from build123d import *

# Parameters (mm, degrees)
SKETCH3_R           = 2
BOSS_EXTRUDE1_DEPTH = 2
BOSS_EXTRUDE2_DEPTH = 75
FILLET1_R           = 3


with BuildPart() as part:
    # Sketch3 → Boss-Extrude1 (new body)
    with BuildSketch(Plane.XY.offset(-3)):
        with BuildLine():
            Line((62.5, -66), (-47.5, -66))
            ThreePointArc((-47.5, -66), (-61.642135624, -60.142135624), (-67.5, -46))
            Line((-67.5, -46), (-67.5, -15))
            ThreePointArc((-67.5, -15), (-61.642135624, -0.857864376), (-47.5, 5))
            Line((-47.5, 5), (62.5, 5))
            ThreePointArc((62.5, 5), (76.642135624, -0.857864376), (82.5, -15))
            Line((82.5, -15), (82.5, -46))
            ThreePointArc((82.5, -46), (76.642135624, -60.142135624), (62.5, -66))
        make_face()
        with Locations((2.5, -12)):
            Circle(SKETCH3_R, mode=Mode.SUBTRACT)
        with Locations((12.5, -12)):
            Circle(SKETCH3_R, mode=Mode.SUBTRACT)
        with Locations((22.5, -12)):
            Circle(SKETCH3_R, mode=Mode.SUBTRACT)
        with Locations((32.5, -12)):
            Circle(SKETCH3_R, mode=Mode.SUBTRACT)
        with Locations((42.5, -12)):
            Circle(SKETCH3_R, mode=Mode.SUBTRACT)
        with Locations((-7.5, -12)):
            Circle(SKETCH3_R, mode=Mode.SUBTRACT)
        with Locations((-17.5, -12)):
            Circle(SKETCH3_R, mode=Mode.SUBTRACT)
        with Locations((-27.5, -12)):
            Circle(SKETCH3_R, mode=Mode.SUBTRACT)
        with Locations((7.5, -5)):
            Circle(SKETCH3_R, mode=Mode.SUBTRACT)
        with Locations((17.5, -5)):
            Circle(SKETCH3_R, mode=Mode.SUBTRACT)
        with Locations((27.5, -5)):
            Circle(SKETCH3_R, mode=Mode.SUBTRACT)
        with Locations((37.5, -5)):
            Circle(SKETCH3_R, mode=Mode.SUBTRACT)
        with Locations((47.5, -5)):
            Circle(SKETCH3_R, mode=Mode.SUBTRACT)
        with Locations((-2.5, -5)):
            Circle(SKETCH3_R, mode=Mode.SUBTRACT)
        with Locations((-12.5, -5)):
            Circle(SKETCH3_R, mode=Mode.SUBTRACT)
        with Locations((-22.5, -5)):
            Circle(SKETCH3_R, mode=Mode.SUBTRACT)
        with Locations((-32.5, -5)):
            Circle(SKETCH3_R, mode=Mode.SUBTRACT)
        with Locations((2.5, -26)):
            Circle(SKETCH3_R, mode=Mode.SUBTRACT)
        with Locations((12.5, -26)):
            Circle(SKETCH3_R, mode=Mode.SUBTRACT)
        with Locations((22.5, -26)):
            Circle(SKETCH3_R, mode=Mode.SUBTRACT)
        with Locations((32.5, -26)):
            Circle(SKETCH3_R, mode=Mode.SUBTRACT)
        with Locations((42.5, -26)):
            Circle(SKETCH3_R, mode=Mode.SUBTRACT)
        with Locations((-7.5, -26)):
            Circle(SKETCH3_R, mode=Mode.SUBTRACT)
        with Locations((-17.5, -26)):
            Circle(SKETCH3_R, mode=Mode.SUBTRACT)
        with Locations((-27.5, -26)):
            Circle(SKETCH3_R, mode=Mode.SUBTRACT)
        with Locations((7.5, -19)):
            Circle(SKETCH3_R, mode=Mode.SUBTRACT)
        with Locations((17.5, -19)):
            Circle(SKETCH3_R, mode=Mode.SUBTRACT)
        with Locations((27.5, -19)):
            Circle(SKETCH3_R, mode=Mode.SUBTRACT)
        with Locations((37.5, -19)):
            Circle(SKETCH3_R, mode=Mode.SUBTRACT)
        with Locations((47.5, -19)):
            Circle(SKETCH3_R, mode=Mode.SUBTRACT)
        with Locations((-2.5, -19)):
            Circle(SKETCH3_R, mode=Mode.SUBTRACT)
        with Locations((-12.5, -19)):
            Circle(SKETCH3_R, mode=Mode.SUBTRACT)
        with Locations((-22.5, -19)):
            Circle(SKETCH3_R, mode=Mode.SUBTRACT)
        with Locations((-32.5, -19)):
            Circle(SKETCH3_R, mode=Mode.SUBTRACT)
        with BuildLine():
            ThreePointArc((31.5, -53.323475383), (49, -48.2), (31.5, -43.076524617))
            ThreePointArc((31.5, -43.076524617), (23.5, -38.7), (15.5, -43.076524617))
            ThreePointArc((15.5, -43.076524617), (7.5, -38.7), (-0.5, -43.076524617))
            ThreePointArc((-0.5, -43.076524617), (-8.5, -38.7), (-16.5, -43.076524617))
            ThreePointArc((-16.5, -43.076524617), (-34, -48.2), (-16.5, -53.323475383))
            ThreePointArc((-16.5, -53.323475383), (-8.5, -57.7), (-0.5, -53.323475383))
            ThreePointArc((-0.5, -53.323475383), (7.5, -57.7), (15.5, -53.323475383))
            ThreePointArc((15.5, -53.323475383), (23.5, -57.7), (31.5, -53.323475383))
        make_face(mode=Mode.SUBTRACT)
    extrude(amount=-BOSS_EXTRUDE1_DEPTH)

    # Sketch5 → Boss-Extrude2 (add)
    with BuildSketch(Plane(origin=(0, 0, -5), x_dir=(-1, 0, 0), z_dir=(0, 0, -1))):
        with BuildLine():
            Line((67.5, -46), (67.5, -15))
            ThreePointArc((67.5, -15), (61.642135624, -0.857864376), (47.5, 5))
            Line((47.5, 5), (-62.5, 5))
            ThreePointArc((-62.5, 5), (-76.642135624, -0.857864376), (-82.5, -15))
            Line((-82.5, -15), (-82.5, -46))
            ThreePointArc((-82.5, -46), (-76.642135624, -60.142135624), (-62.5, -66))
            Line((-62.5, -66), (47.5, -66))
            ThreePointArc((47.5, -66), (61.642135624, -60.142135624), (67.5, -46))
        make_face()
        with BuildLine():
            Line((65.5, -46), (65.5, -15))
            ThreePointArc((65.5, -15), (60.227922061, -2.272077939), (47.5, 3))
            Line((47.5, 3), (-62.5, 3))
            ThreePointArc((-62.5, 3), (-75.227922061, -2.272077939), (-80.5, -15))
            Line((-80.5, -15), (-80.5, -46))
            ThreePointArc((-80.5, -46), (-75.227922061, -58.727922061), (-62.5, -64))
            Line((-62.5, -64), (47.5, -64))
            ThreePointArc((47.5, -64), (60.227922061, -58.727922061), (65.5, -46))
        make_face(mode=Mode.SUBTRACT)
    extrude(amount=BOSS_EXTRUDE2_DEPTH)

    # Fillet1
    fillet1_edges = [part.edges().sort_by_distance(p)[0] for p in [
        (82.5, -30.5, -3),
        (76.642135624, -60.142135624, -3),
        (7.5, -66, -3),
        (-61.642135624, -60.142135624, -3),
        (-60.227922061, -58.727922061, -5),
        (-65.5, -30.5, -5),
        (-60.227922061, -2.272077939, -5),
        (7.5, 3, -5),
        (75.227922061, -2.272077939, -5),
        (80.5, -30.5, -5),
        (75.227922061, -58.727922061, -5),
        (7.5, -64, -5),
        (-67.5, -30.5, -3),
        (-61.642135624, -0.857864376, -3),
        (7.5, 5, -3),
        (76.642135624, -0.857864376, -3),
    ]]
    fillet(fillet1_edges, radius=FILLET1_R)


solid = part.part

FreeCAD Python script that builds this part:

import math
import FreeCAD as App
import Part
import Sketcher
from FreeCAD import Vector


def edges_at(feature, points):
    """Names of the edges that pass closest to the given points."""
    edges = feature.Shape.Edges
    near = lambda p: min(range(len(edges)), key=lambda i: edges[i].distToShape(Part.Vertex(*p))[0])
    return sorted({f"Edge{near(p) + 1}" for p in points})

doc = App.newDocument("Part")
params = doc.addObject("Spreadsheet::Sheet", "Params")
for row, (alias, value) in enumerate([
    ("sketch1_diameter", "4 mm"),
    ("sketch1_radius", "20 mm"),
    ("sketch1_radius2", "9.5 mm"),
    ("sketch1_width", "110 mm"),
    ("sketch1_height", "31 mm"),
    ("pad1_length", "2 mm"),
    ("sketch2_radius", "20 mm"),
    ("sketch2_radius2", "18 mm"),
    ("sketch2_width", "110 mm"),
    ("sketch2_height", "31 mm"),
    ("pad2_length", "75 mm"),
    ("fillet_radius", "3 mm"),
], start=1):
    params.set(f"A{row}", alias)
    params.set(f"B{row}", "=" + value)
    params.setAlias(f"B{row}", alias)

body = doc.addObject("PartDesign::Body", "Body")

sketch1 = body.newObject("Sketcher::SketchObject", "Sketch")
sketch1.AttachmentSupport = (doc.getObject("XY_Plane"), [""])
sketch1.MapMode = "FlatFace"
sketch1.AttachmentOffset = App.Placement(Vector(0, 0, -3), App.Rotation())
sketch1.addGeometry([
    Part.LineSegment(Vector(-47.5, -66, 0), Vector(62.5, -66, 0)),
    Part.ArcOfCircle(Part.Circle(Vector(62.5, -46, 0), Vector(0, 0, 1), 20), math.radians(-90), math.radians(0)),
    Part.LineSegment(Vector(82.5, -46, 0), Vector(82.5, -15, 0)),
    Part.ArcOfCircle(Part.Circle(Vector(62.5, -15, 0), Vector(0, 0, 1), 20), math.radians(0), math.radians(90)),
    Part.LineSegment(Vector(62.5, 5, 0), Vector(-47.5, 5, 0)),
    Part.ArcOfCircle(Part.Circle(Vector(-47.5, -15, 0), Vector(0, 0, 1), 20), math.radians(90), math.radians(180)),
    Part.LineSegment(Vector(-67.5, -15, 0), Vector(-67.5, -46, 0)),
    Part.ArcOfCircle(Part.Circle(Vector(-47.5, -46, 0), Vector(0, 0, 1), 20), math.radians(180), math.radians(270)),
    Part.ArcOfCircle(Part.Circle(Vector(23.5, -48.2, 0), Vector(0, 0, 1), 9.5), math.radians(-147), math.radians(-33)),
    Part.ArcOfCircle(Part.Circle(Vector(7.5, -48.2, 0), Vector(0, 0, 1), 9.5), math.radians(-147), math.radians(-33)),
    Part.ArcOfCircle(Part.Circle(Vector(-8.5, -48.2, 0), Vector(0, 0, 1), 9.5), math.radians(-147), math.radians(-33)),
    Part.ArcOfCircle(Part.Circle(Vector(-24.5, -48.2, 0), Vector(0, 0, 1), 9.5), math.radians(33), math.radians(327)),
    Part.ArcOfCircle(Part.Circle(Vector(-8.5, -48.2, 0), Vector(0, 0, 1), 9.5), math.radians(33), math.radians(147)),
    Part.ArcOfCircle(Part.Circle(Vector(7.5, -48.2, 0), Vector(0, 0, 1), 9.5), math.radians(33), math.radians(147)),
    Part.ArcOfCircle(Part.Circle(Vector(23.5, -48.2, 0), Vector(0, 0, 1), 9.5), math.radians(33), math.radians(147)),
    Part.ArcOfCircle(Part.Circle(Vector(39.5, -48.2, 0), Vector(0, 0, 1), 9.5), math.radians(-147), math.radians(147)),
    Part.Circle(Vector(42.5, -26, 0), Vector(0, 0, 1), 2),
    Part.Circle(Vector(32.5, -26, 0), Vector(0, 0, 1), 2),
    Part.Circle(Vector(47.5, -19, 0), Vector(0, 0, 1), 2),
    Part.Circle(Vector(37.5, -19, 0), Vector(0, 0, 1), 2),
    Part.Circle(Vector(22.5, -26, 0), Vector(0, 0, 1), 2),
    Part.Circle(Vector(12.5, -26, 0), Vector(0, 0, 1), 2),
    Part.Circle(Vector(27.5, -19, 0), Vector(0, 0, 1), 2),
    Part.Circle(Vector(17.5, -19, 0), Vector(0, 0, 1), 2),
    Part.Circle(Vector(42.5, -12, 0), Vector(0, 0, 1), 2),
    Part.Circle(Vector(32.5, -12, 0), Vector(0, 0, 1), 2),
    Part.Circle(Vector(47.5, -5, 0), Vector(0, 0, 1), 2),
    Part.Circle(Vector(37.5, -5, 0), Vector(0, 0, 1), 2),
    Part.Circle(Vector(22.5, -12, 0), Vector(0, 0, 1), 2),
    Part.Circle(Vector(12.5, -12, 0), Vector(0, 0, 1), 2),
    Part.Circle(Vector(27.5, -5, 0), Vector(0, 0, 1), 2),
    Part.Circle(Vector(17.5, -5, 0), Vector(0, 0, 1), 2),
    Part.Circle(Vector(2.5, -26, 0), Vector(0, 0, 1), 2),
    Part.Circle(Vector(-7.5, -26, 0), Vector(0, 0, 1), 2),
    Part.Circle(Vector(7.5, -19, 0), Vector(0, 0, 1), 2),
    Part.Circle(Vector(-2.5, -19, 0), Vector(0, 0, 1), 2),
    Part.Circle(Vector(-12.5, -19, 0), Vector(0, 0, 1), 2),
    Part.Circle(Vector(-17.5, -26, 0), Vector(0, 0, 1), 2),
    Part.Circle(Vector(-27.5, -26, 0), Vector(0, 0, 1), 2),
    Part.Circle(Vector(-22.5, -19, 0), Vector(0, 0, 1), 2),
    Part.Circle(Vector(-32.5, -19, 0), Vector(0, 0, 1), 2),
    Part.Circle(Vector(2.5, -12, 0), Vector(0, 0, 1), 2),
    Part.Circle(Vector(-7.5, -12, 0), Vector(0, 0, 1), 2),
    Part.Circle(Vector(7.5, -5, 0), Vector(0, 0, 1), 2),
    Part.Circle(Vector(-2.5, -5, 0), Vector(0, 0, 1), 2),
    Part.Circle(Vector(-12.5, -5, 0), Vector(0, 0, 1), 2),
    Part.Circle(Vector(-17.5, -12, 0), Vector(0, 0, 1), 2),
    Part.Circle(Vector(-27.5, -12, 0), Vector(0, 0, 1), 2),
    Part.Circle(Vector(-22.5, -5, 0), Vector(0, 0, 1), 2),
    Part.Circle(Vector(-32.5, -5, 0), Vector(0, 0, 1), 2),
], False)
sketch1.addConstraint([
    Sketcher.Constraint("Tangent", 0, 2, 1, 1),
    Sketcher.Constraint("Tangent", 1, 2, 2, 1),
    Sketcher.Constraint("Tangent", 2, 2, 3, 1),
    Sketcher.Constraint("Tangent", 3, 2, 4, 1),
    Sketcher.Constraint("Tangent", 4, 2, 5, 1),
    Sketcher.Constraint("Tangent", 5, 2, 6, 1),
    Sketcher.Constraint("Tangent", 6, 2, 7, 1),
    Sketcher.Constraint("Tangent", 7, 2, 0, 1),
    Sketcher.Constraint("Coincident", 8, 1, 9, 2),
    Sketcher.Constraint("Coincident", 9, 1, 10, 2),
    Sketcher.Constraint("Coincident", 10, 1, 11, 2),
    Sketcher.Constraint("Coincident", 11, 1, 12, 2),
    Sketcher.Constraint("Coincident", 12, 1, 13, 2),
    Sketcher.Constraint("Coincident", 13, 1, 14, 2),
    Sketcher.Constraint("Coincident", 14, 1, 15, 2),
    Sketcher.Constraint("Coincident", 15, 1, 8, 2),
    Sketcher.Constraint("Horizontal", 0),
    Sketcher.Constraint("Vertical", 2),
    Sketcher.Constraint("Horizontal", 4),
    Sketcher.Constraint("Vertical", 6),
    Sketcher.Constraint("Coincident", 12, 3, 10, 3),
    Sketcher.Constraint("Coincident", 13, 3, 9, 3),
    Sketcher.Constraint("Coincident", 14, 3, 8, 3),
    Sketcher.Constraint("Equal", 1, 3),
    Sketcher.Constraint("Equal", 3, 5),
    Sketcher.Constraint("Equal", 5, 7),
    Sketcher.Constraint("Equal", 8, 9),
    Sketcher.Constraint("Equal", 9, 10),
    Sketcher.Constraint("Equal", 10, 11),
    Sketcher.Constraint("Equal", 11, 12),
    Sketcher.Constraint("Equal", 12, 13),
    Sketcher.Constraint("Equal", 13, 14),
    Sketcher.Constraint("Equal", 14, 15),
    Sketcher.Constraint("Equal", 16, 17),
    Sketcher.Constraint("Equal", 17, 18),
    Sketcher.Constraint("Equal", 18, 19),
    Sketcher.Constraint("Equal", 19, 20),
    Sketcher.Constraint("Equal", 20, 21),
    Sketcher.Constraint("Equal", 21, 22),
    Sketcher.Constraint("Equal", 22, 23),
    Sketcher.Constraint("Equal", 23, 24),
    Sketcher.Constraint("Equal", 24, 25),
    Sketcher.Constraint("Equal", 25, 26),
    Sketcher.Constraint("Equal", 26, 27),
    Sketcher.Constraint("Equal", 27, 28),
    Sketcher.Constraint("Equal", 28, 29),
    Sketcher.Constraint("Equal", 29, 30),
    Sketcher.Constraint("Equal", 30, 31),
    Sketcher.Constraint("Equal", 31, 32),
    Sketcher.Constraint("Equal", 32, 33),
    Sketcher.Constraint("Equal", 33, 34),
    Sketcher.Constraint("Equal", 34, 35),
    Sketcher.Constraint("Equal", 35, 36),
    Sketcher.Constraint("Equal", 36, 37),
    Sketcher.Constraint("Equal", 37, 38),
    Sketcher.Constraint("Equal", 38, 39),
    Sketcher.Constraint("Equal", 39, 40),
    Sketcher.Constraint("Equal", 40, 41),
    Sketcher.Constraint("Equal", 41, 42),
    Sketcher.Constraint("Equal", 42, 43),
    Sketcher.Constraint("Equal", 43, 44),
    Sketcher.Constraint("Equal", 44, 45),
    Sketcher.Constraint("Equal", 45, 46),
    Sketcher.Constraint("Equal", 46, 47),
    Sketcher.Constraint("Equal", 47, 48),
    Sketcher.Constraint("Equal", 48, 49),
    Sketcher.Constraint("Horizontal", 8, 3, 9, 3),
    Sketcher.Constraint("Horizontal", 9, 3, 10, 3),
    Sketcher.Constraint("Horizontal", 10, 3, 11, 3),
    Sketcher.Constraint("Horizontal", 14, 3, 15, 3),
    Sketcher.Constraint("Horizontal", 16, 3, 17, 3),
    Sketcher.Constraint("Horizontal", 18, 3, 19, 3),
    Sketcher.Constraint("Horizontal", 17, 3, 20, 3),
    Sketcher.Constraint("Horizontal", 20, 3, 21, 3),
    Sketcher.Constraint("Horizontal", 19, 3, 22, 3),
    Sketcher.Constraint("Horizontal", 22, 3, 23, 3),
    Sketcher.Constraint("Horizontal", 24, 3, 25, 3),
    Sketcher.Constraint("Horizontal", 26, 3, 27, 3),
    Sketcher.Constraint("Horizontal", 25, 3, 28, 3),
    Sketcher.Constraint("Horizontal", 28, 3, 29, 3),
    Sketcher.Constraint("Horizontal", 27, 3, 30, 3),
    Sketcher.Constraint("Horizontal", 30, 3, 31, 3),
    Sketcher.Constraint("Horizontal", 21, 3, 32, 3),
    Sketcher.Constraint("Horizontal", 32, 3, 33, 3),
    Sketcher.Constraint("Horizontal", 23, 3, 34, 3),
    Sketcher.Constraint("Horizontal", 34, 3, 35, 3),
    Sketcher.Constraint("Horizontal", 35, 3, 36, 3),
    Sketcher.Constraint("Horizontal", 33, 3, 37, 3),
    Sketcher.Constraint("Horizontal", 37, 3, 38, 3),
    Sketcher.Constraint("Horizontal", 36, 3, 39, 3),
    Sketcher.Constraint("Horizontal", 39, 3, 40, 3),
    Sketcher.Constraint("Horizontal", 29, 3, 41, 3),
    Sketcher.Constraint("Horizontal", 41, 3, 42, 3),
    Sketcher.Constraint("Horizontal", 31, 3, 43, 3),
    Sketcher.Constraint("Horizontal", 43, 3, 44, 3),
    Sketcher.Constraint("Horizontal", 44, 3, 45, 3),
    Sketcher.Constraint("Horizontal", 42, 3, 46, 3),
    Sketcher.Constraint("Horizontal", 46, 3, 47, 3),
    Sketcher.Constraint("Horizontal", 45, 3, 48, 3),
    Sketcher.Constraint("Horizontal", 48, 3, 49, 3),
    Sketcher.Constraint("Horizontal", 8, 1, 9, 1),
    Sketcher.Constraint("Horizontal", 9, 1, 10, 1),
    Sketcher.Constraint("Horizontal", 13, 1, 14, 1),
    Sketcher.Constraint("Vertical", 16, 3, 24, 3),
    Sketcher.Constraint("Vertical", 17, 3, 25, 3),
    Sketcher.Constraint("Vertical", 18, 3, 26, 3),
    Sketcher.Constraint("Vertical", 19, 3, 27, 3),
    Sketcher.Constraint("Vertical", 20, 3, 28, 3),
    Sketcher.Constraint("Vertical", 21, 3, 29, 3),
    Sketcher.Constraint("Vertical", 22, 3, 30, 3),
    Sketcher.Constraint("Vertical", 23, 3, 31, 3),
    Sketcher.Constraint("Vertical", 13, 3, 34, 3),
    Sketcher.Constraint("Vertical", 32, 3, 41, 3),
    Sketcher.Constraint("Vertical", 33, 3, 42, 3),
    Sketcher.Constraint("Vertical", 34, 3, 43, 3),
    Sketcher.Constraint("Vertical", 35, 3, 44, 3),
    Sketcher.Constraint("Vertical", 36, 3, 45, 3),
    Sketcher.Constraint("Vertical", 37, 3, 46, 3),
    Sketcher.Constraint("Vertical", 38, 3, 47, 3),
    Sketcher.Constraint("Vertical", 39, 3, 48, 3),
    Sketcher.Constraint("Vertical", 40, 3, 49, 3),
    Sketcher.Constraint("Diameter", 16, 4.0),
    Sketcher.Constraint("Radius", 1, 20.0),
    Sketcher.Constraint("Radius", 8, 9.5),
    Sketcher.Constraint("DistanceX", 0, 1, 0, 2, 110.0),
    Sketcher.Constraint("DistanceY", 2, 1, 2, 2, 31.0),
    Sketcher.Constraint("DistanceY", 1, 3, -1, 1, 46.0),
    Sketcher.Constraint("DistanceY", 16, 3, -1, 1, 26.0),
    Sketcher.Constraint("DistanceY", 18, 3, -1, 1, 19.0),
    Sketcher.Constraint("DistanceY", 24, 3, -1, 1, 12.0),
    Sketcher.Constraint("DistanceY", 26, 3, -1, 1, 5.0),
    Sketcher.Constraint("DistanceX", -1, 1, 1, 3, 62.5),
    Sketcher.Constraint("DistanceX", -1, 1, 8, 3, 23.5),
    Sketcher.Constraint("DistanceY", 8, 3, -1, 1, 48.2),
    Sketcher.Constraint("DistanceX", -1, 1, 9, 3, 7.5),
    Sketcher.Constraint("DistanceX", -1, 1, 16, 3, 42.5),
    Sketcher.Constraint("DistanceX", -1, 1, 17, 3, 32.5),
    Sketcher.Constraint("DistanceX", -1, 1, 18, 3, 47.5),
    Sketcher.Constraint("DistanceX", -1, 1, 19, 3, 37.5),
    Sketcher.Constraint("DistanceX", -1, 1, 20, 3, 22.5),
    Sketcher.Constraint("DistanceX", -1, 1, 21, 3, 12.5),
    Sketcher.Constraint("DistanceX", -1, 1, 22, 3, 27.5),
    Sketcher.Constraint("DistanceX", -1, 1, 23, 3, 17.5),
    Sketcher.Constraint("DistanceX", -1, 1, 32, 3, 2.5),
    Sketcher.Constraint("DistanceX", 33, 3, -1, 1, 7.5),
    Sketcher.Constraint("DistanceX", 35, 3, -1, 1, 2.5),
    Sketcher.Constraint("DistanceX", 36, 3, -1, 1, 12.5),
    Sketcher.Constraint("DistanceX", 37, 3, -1, 1, 17.5),
    Sketcher.Constraint("DistanceX", 38, 3, -1, 1, 27.5),
    Sketcher.Constraint("DistanceX", 39, 3, -1, 1, 22.5),
    Sketcher.Constraint("DistanceX", 40, 3, -1, 1, 32.5),
])
sketch1.setExpression("Constraints[121]", "Params.sketch1_diameter")
sketch1.setExpression("Constraints[122]", "Params.sketch1_radius")
sketch1.setExpression("Constraints[123]", "Params.sketch1_radius2")
sketch1.setExpression("Constraints[124]", "Params.sketch1_width")
sketch1.setExpression("Constraints[125]", "Params.sketch1_height")
pad1 = body.newObject("PartDesign::Pad", "Pad")
pad1.Profile = sketch1
pad1.setExpression("Length", "Params.pad1_length")
pad1.Reversed = True

sketch2 = body.newObject("Sketcher::SketchObject", "Sketch001")
sketch2.AttachmentSupport = (doc.getObject("XY_Plane"), [""])
sketch2.MapMode = "FlatFace"
sketch2.AttachmentOffset = App.Placement(Vector(0, 0, -5), App.Rotation())
sketch2.addGeometry([
    Part.LineSegment(Vector(-68, -46, 0), Vector(-68, -15, 0)),
    Part.ArcOfCircle(Part.Circle(Vector(-48, -15, 0), Vector(0, 0, 1), 20), math.radians(90), math.radians(180)),
    Part.LineSegment(Vector(-48, 5, 0), Vector(62, 5, 0)),
    Part.ArcOfCircle(Part.Circle(Vector(63, -15, 0), Vector(0, 0, 1), 20), math.radians(0), math.radians(90)),
    Part.LineSegment(Vector(82, -15, 0), Vector(82, -46, 0)),
    Part.ArcOfCircle(Part.Circle(Vector(63, -46, 0), Vector(0, 0, 1), 20), math.radians(-90), math.radians(0)),
    Part.LineSegment(Vector(62, -66, 0), Vector(-48, -66, 0)),
    Part.ArcOfCircle(Part.Circle(Vector(-48, -46, 0), Vector(0, 0, 1), 20), math.radians(180), math.radians(270)),
    Part.LineSegment(Vector(-66, -15, 0), Vector(-66, -46, 0)),
    Part.ArcOfCircle(Part.Circle(Vector(-47, -46, 0), Vector(0, 0, 1), 18), math.radians(-180), math.radians(-90)),
    Part.LineSegment(Vector(-48, -64, 0), Vector(62, -64, 0)),
    Part.ArcOfCircle(Part.Circle(Vector(62, -46, 0), Vector(0, 0, 1), 18), math.radians(-90), math.radians(0)),
    Part.LineSegment(Vector(80, -46, 0), Vector(80, -15, 0)),
    Part.ArcOfCircle(Part.Circle(Vector(62, -15, 0), Vector(0, 0, 1), 18), math.radians(0), math.radians(90)),
    Part.LineSegment(Vector(62, 3, 0), Vector(-48, 3, 0)),
    Part.ArcOfCircle(Part.Circle(Vector(-47, -15, 0), Vector(0, 0, 1), 18), math.radians(90), math.radians(180)),
], False)
sketch2.addConstraint([
    Sketcher.Constraint("Tangent", 0, 2, 1, 2),
    Sketcher.Constraint("Tangent", 1, 1, 2, 1),
    Sketcher.Constraint("Tangent", 2, 2, 3, 2),
    Sketcher.Constraint("Tangent", 3, 1, 4, 1),
    Sketcher.Constraint("Tangent", 4, 2, 5, 2),
    Sketcher.Constraint("Tangent", 5, 1, 6, 1),
    Sketcher.Constraint("Tangent", 6, 2, 7, 2),
    Sketcher.Constraint("Tangent", 7, 1, 0, 1),
    Sketcher.Constraint("Tangent", 8, 2, 9, 1),
    Sketcher.Constraint("Tangent", 9, 2, 10, 1),
    Sketcher.Constraint("Tangent", 10, 2, 11, 1),
    Sketcher.Constraint("Tangent", 11, 2, 12, 1),
    Sketcher.Constraint("Tangent", 12, 2, 13, 1),
    Sketcher.Constraint("Tangent", 13, 2, 14, 1),
    Sketcher.Constraint("Tangent", 14, 2, 15, 1),
    Sketcher.Constraint("Tangent", 15, 2, 8, 1),
    Sketcher.Constraint("Vertical", 0),
    Sketcher.Constraint("Horizontal", 2),
    Sketcher.Constraint("Vertical", 4),
    Sketcher.Constraint("Horizontal", 6),
    Sketcher.Constraint("Vertical", 8),
    Sketcher.Constraint("Horizontal", 10),
    Sketcher.Constraint("Vertical", 12),
    Sketcher.Constraint("Horizontal", 14),
    Sketcher.Constraint("Coincident", 9, 3, 7, 3),
    Sketcher.Constraint("Coincident", 11, 3, 5, 3),
    Sketcher.Constraint("Coincident", 13, 3, 3, 3),
    Sketcher.Constraint("Equal", 1, 3),
    Sketcher.Constraint("Equal", 3, 5),
    Sketcher.Constraint("Equal", 5, 7),
    Sketcher.Constraint("Equal", 13, 15),
    Sketcher.Constraint("Radius", 1, 20.0),
    Sketcher.Constraint("Radius", 9, 18.0),
    Sketcher.Constraint("DistanceX", 2, 1, 2, 2, 110.0),
    Sketcher.Constraint("DistanceY", 0, 1, 0, 2, 31.0),
    Sketcher.Constraint("DistanceY", 1, 3, -1, 1, 15.0),
    Sketcher.Constraint("DistanceX", 1, 3, -1, 1, 47.5),
])
sketch2.setExpression("Constraints[31]", "Params.sketch2_radius")
sketch2.setExpression("Constraints[32]", "Params.sketch2_radius2")
sketch2.setExpression("Constraints[33]", "Params.sketch2_width")
sketch2.setExpression("Constraints[34]", "Params.sketch2_height")
pad2 = body.newObject("PartDesign::Pad", "Pad001")
pad2.Profile = sketch2
pad2.setExpression("Length", "Params.pad2_length")
pad2.Reversed = True
doc.recompute()

fillet = body.newObject("PartDesign::Fillet", "Fillet")
fillet.Base = (pad2, edges_at(pad2, [
    (82.5, -30.5, -3),
    (76.642, -60.142, -3),
    (7.5, -66, -3),
    (-61.642, -60.142, -3),
    (-60.228, -58.728, -5),
    (-65.5, -30.5, -5),
    (-60.228, -2.272, -5),
    (7.5, 3, -5),
    (75.228, -2.272, -5),
    (80.5, -30.5, -5),
    (75.228, -58.728, -5),
    (7.5, -64, -5),
    (-67.5, -30.5, -3),
    (-61.642, -0.858, -3),
    (7.5, 5, -3),
    (76.642, -0.858, -3),
]))
fillet.setExpression("Radius", "Params.fillet_radius")

doc.recompute()
